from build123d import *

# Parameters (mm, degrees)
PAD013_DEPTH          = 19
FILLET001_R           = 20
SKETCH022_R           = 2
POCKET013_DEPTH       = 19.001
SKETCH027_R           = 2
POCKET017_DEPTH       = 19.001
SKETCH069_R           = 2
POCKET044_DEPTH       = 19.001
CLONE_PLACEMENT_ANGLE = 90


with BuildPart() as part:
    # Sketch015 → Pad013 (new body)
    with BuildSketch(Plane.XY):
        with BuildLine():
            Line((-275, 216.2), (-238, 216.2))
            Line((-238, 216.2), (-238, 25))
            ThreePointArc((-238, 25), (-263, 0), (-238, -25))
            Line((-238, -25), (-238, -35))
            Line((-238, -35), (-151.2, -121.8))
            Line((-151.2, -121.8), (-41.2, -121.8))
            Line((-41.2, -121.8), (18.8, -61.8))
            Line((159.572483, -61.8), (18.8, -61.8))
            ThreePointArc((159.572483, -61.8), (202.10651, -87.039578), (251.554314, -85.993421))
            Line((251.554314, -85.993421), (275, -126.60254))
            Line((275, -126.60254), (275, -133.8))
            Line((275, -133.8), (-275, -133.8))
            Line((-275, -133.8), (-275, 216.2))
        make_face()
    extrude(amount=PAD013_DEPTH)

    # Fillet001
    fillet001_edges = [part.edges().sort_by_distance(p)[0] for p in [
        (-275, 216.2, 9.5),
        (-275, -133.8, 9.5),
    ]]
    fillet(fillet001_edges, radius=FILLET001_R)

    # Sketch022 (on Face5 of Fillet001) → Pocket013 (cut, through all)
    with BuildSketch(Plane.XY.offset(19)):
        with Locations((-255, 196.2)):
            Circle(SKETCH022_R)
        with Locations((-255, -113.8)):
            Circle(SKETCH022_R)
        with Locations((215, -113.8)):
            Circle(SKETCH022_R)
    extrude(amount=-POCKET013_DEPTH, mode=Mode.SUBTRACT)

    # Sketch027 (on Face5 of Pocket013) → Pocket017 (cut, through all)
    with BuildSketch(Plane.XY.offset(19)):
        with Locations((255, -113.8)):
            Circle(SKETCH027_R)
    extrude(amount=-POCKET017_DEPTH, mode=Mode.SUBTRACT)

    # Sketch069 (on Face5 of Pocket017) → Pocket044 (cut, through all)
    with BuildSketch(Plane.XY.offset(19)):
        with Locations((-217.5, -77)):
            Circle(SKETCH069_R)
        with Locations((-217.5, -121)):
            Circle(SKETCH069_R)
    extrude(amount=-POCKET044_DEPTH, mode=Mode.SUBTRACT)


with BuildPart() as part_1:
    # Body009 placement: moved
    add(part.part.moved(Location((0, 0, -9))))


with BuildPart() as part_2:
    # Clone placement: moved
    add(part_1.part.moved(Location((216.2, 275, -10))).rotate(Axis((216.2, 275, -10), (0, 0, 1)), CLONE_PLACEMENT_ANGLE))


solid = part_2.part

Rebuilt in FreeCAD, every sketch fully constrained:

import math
import FreeCAD as App
import Part
import Sketcher
from FreeCAD import Vector
Q = App.Units.Quantity


def edges_at(feature, points):
    """Names of the edges that pass closest to the given points."""
    edges = feature.Shape.Edges
    near = lambda p: min(range(len(edges)), key=lambda i: edges[i].distToShape(Part.Vertex(*p))[0])
    return sorted({f"Edge{near(p) + 1}" for p in points})

doc = App.newDocument("Part")
body = doc.addObject("PartDesign::Body", "Body")

# Sketch on XY plane
sketch1 = body.newObject("Sketcher::SketchObject", "Sketch")
sketch1.AttachmentSupport = (doc.getObject("XY_Plane"), [""])
sketch1.MapMode = "FlatFace"
sketch1.addGeometry([
    Part.LineSegment(Vector(-238, 216, 0), Vector(-275, 216, 0)),  # 0
    Part.LineSegment(Vector(-275, 216, 0), Vector(-275, -134, 0)),  # 1
    Part.LineSegment(Vector(-275, -134, 0), Vector(275, -134, 0)),  # 2
    Part.LineSegment(Vector(275, -134, 0), Vector(275, -127, 0)),  # 3
    Part.LineSegment(Vector(275, -127, 0), Vector(252, -86, 0)),  # 4
    Part.ArcOfCircle(Part.Circle(Vector(225, 0, 0), Vector(0, 0, 1), 90), math.radians(-137), math.radians(-73)),  # 5
    Part.LineSegment(Vector(160, -62, 0), Vector(19, -62, 0)),  # 6
    Part.LineSegment(Vector(19, -62, 0), Vector(-41, -122, 0)),  # 7
    Part.LineSegment(Vector(-41, -122, 0), Vector(-151, -122, 0)),  # 8
    Part.LineSegment(Vector(-151, -122, 0), Vector(-238, -35, 0)),  # 9
    Part.LineSegment(Vector(-238, -35, 0), Vector(-238, -25, 0)),  # 10
    Part.ArcOfCircle(Part.Circle(Vector(-238, 0, 0), Vector(0, 0, 1), 25), math.radians(90), math.radians(270)),  # 11
    Part.LineSegment(Vector(-238, 25, 0), Vector(-238, 216, 0)),  # 12
], False)
sketch1.addConstraint([
    Sketcher.Constraint("Coincident", 0, 2, 1, 1),
    Sketcher.Constraint("Coincident", 1, 2, 2, 1),
    Sketcher.Constraint("Coincident", 2, 2, 3, 1),
    Sketcher.Constraint("Coincident", 3, 2, 4, 1),
    Sketcher.Constraint("Coincident", 4, 2, 5, 2),
    Sketcher.Constraint("Coincident", 5, 1, 6, 1),
    Sketcher.Constraint("Coincident", 6, 2, 7, 1),
    Sketcher.Constraint("Coincident", 7, 2, 8, 1),
    Sketcher.Constraint("Coincident", 8, 2, 9, 1),
    Sketcher.Constraint("Coincident", 9, 2, 10, 1),
    Sketcher.Constraint("Coincident", 10, 2, 11, 2),
    Sketcher.Constraint("Coincident", 11, 1, 12, 1),
    Sketcher.Constraint("Coincident", 12, 2, 0, 1),
    Sketcher.Constraint("Horizontal", 0),
    Sketcher.Constraint("Vertical", 1),
    Sketcher.Constraint("Horizontal", 2),
    Sketcher.Constraint("Vertical", 3),
    Sketcher.Constraint("Horizontal", 6),
    Sketcher.Constraint("Horizontal", 8),
    Sketcher.Constraint("Vertical", 10),
    Sketcher.Constraint("Vertical", 12),
    Sketcher.Constraint("Symmetric", 10, 2, 11, 1, -1),
    Sketcher.Constraint("PointOnObject", 5, 3, -1),
    Sketcher.Constraint("Perpendicular", 7, 9),
    Sketcher.Constraint("Vertical", 11, 3, 9, 2),
    Sketcher.Constraint("Radius", 5, 90.0),
    Sketcher.Constraint("Radius", 11, 25.0),
    Sketcher.Constraint("DistanceX", 0, 2, 0, 1, 37.0),
    Sketcher.Constraint("DistanceX", 2, 1, 2, 2, 550.0),
    Sketcher.Constraint("DistanceX", 8, 2, 8, 1, 110.0),
    Sketcher.Constraint("DistanceY", 1, 2, 1, 1, 350.0),
    Sketcher.Constraint("DistanceY", 10, 1, 10, 2, 10.0),
    Sketcher.Constraint("Angle", 4, Q("120 deg")),
    Sketcher.Constraint("Angle", 7, Q("-135 deg")),
    Sketcher.Constraint("DistanceY", 12, 1, 12, 2, 191.2),
    Sketcher.Constraint("DistanceX", -1, 1, 5, 3, 225.0),
    Sketcher.Constraint("DistanceX", 11, 3, -1, 1, 238.0),
    Sketcher.Constraint("DistanceY", 2, 2, 5, 1, 72.0),
    Sketcher.Constraint("DistanceX", 7, 2, 6, 2, 60.0),
    Sketcher.Constraint("DistanceY", 3, 1, 3, 2, 7.19746),
])
pad1 = body.newObject("PartDesign::Pad", "Pad")
pad1.Profile = sketch1
pad1.Length = 19
doc.recompute()

fillet = body.newObject("PartDesign::Fillet", "Fillet")
fillet.Base = (pad1, edges_at(pad1, [(-275, 216.2, 9.5), (-275, -133.8, 9.5)]))
fillet.Radius = 20

# Sketch on XY plane
sketch2 = body.newObject("Sketcher::SketchObject", "Sketch001")
sketch2.AttachmentSupport = (doc.getObject("XY_Plane"), [""])
sketch2.MapMode = "FlatFace"
sketch2.AttachmentOffset = App.Placement(Vector(0, 0, 19), App.Rotation())
sketch2.addGeometry([
    Part.Circle(Vector(-255, 196.2, 0), Vector(0, 0, 1), 2),
    Part.Circle(Vector(-255, -113.8, 0), Vector(0, 0, 1), 2),
    Part.Circle(Vector(215, -113.8, 0), Vector(0, 0, 1), 2),
], False)
sketch2.addConstraint([
    Sketcher.Constraint("Equal", 0, 1),
    Sketcher.Constraint("Equal", 1, 2),
    Sketcher.Constraint("Horizontal", 1, 3, 2, 3),
    Sketcher.Constraint("Vertical", 0, 3, 1, 3),
    Sketcher.Constraint("Diameter", 0, 4.0),
    Sketcher.Constraint("DistanceX", 0, 3, -1, 1, 255.0),
    Sketcher.Constraint("DistanceX", -1, 1, 2, 3, 215.0),
    Sketcher.Constraint("DistanceY", 1, 3, 0, 3, 310.0),
    Sketcher.Constraint("DistanceY", -1, 1, 0, 3, 196.2),
])
pocket1 = body.newObject("PartDesign::Pocket", "Pocket")
pocket1.Profile = sketch2
pocket1.Type = "ThroughAll"

# Sketch on XY plane
sketch3 = body.newObject("Sketcher::SketchObject", "Sketch002")
sketch3.AttachmentSupport = (doc.getObject("XY_Plane"), [""])
sketch3.MapMode = "FlatFace"
sketch3.AttachmentOffset = App.Placement(Vector(0, 0, 19), App.Rotation())
sketch3.addGeometry(Part.Circle(Vector(255, -113.8, 0), Vector(0, 0, 1), 2), False)
sketch3.addConstraint([
    Sketcher.Constraint("Diameter", 0, 4.0),
    Sketcher.Constraint("DistanceX", -1, 1, 0, 3, 255.0),
    Sketcher.Constraint("DistanceY", 0, 3, -1, 1, 113.8),
])
pocket2 = body.newObject("PartDesign::Pocket", "Pocket001")
pocket2.Profile = sketch3
pocket2.Type = "ThroughAll"

# Sketch on XY plane
sketch4 = body.newObject("Sketcher::SketchObject", "Sketch003")
sketch4.AttachmentSupport = (doc.getObject("XY_Plane"), [""])
sketch4.MapMode = "FlatFace"
sketch4.AttachmentOffset = App.Placement(Vector(0, 0, 19), App.Rotation())
sketch4.addGeometry([
    Part.Circle(Vector(-217.5, -77, 0), Vector(0, 0, 1), 2),
    Part.Circle(Vector(-217.5, -121, 0), Vector(0, 0, 1), 2),
], False)
sketch4.addConstraint([
    Sketcher.Constraint("Equal", 0, 1),
    Sketcher.Constraint("Vertical", 0, 3, 1, 3),
    Sketcher.Constraint("Diameter", 0, 4.0),
    Sketcher.Constraint("DistanceY", 0, 3, -1, 1, 77.0),
    Sketcher.Constraint("DistanceY", 1, 3, -1, 1, 121.0),
    Sketcher.Constraint("DistanceX", 0, 3, -1, 1, 217.5),
])
pocket3 = body.newObject("PartDesign::Pocket", "Pocket002")
pocket3.Profile = sketch4
pocket3.Type = "ThroughAll"
body2 = doc.addObject("PartDesign::Body", "Body001")
doc.recompute()

body.Placement = App.Placement(Vector(0, 0, -9), App.Rotation(Vector(0, 0, 1), 0))
boolean = body2.newObject("PartDesign::Boolean", "Boolean")
boolean.Type = "Fuse"
boolean.addObjects([body])
body3 = doc.addObject("PartDesign::Body", "Body002")
doc.recompute()

body2.Placement = App.Placement(Vector(216.2, 275, -10), App.Rotation(Vector(0, 0, 1), 90))
boolean2 = body3.newObject("PartDesign::Boolean", "Boolean001")
boolean2.Type = "Fuse"
boolean2.addObjects([body2])

doc.recompute()
